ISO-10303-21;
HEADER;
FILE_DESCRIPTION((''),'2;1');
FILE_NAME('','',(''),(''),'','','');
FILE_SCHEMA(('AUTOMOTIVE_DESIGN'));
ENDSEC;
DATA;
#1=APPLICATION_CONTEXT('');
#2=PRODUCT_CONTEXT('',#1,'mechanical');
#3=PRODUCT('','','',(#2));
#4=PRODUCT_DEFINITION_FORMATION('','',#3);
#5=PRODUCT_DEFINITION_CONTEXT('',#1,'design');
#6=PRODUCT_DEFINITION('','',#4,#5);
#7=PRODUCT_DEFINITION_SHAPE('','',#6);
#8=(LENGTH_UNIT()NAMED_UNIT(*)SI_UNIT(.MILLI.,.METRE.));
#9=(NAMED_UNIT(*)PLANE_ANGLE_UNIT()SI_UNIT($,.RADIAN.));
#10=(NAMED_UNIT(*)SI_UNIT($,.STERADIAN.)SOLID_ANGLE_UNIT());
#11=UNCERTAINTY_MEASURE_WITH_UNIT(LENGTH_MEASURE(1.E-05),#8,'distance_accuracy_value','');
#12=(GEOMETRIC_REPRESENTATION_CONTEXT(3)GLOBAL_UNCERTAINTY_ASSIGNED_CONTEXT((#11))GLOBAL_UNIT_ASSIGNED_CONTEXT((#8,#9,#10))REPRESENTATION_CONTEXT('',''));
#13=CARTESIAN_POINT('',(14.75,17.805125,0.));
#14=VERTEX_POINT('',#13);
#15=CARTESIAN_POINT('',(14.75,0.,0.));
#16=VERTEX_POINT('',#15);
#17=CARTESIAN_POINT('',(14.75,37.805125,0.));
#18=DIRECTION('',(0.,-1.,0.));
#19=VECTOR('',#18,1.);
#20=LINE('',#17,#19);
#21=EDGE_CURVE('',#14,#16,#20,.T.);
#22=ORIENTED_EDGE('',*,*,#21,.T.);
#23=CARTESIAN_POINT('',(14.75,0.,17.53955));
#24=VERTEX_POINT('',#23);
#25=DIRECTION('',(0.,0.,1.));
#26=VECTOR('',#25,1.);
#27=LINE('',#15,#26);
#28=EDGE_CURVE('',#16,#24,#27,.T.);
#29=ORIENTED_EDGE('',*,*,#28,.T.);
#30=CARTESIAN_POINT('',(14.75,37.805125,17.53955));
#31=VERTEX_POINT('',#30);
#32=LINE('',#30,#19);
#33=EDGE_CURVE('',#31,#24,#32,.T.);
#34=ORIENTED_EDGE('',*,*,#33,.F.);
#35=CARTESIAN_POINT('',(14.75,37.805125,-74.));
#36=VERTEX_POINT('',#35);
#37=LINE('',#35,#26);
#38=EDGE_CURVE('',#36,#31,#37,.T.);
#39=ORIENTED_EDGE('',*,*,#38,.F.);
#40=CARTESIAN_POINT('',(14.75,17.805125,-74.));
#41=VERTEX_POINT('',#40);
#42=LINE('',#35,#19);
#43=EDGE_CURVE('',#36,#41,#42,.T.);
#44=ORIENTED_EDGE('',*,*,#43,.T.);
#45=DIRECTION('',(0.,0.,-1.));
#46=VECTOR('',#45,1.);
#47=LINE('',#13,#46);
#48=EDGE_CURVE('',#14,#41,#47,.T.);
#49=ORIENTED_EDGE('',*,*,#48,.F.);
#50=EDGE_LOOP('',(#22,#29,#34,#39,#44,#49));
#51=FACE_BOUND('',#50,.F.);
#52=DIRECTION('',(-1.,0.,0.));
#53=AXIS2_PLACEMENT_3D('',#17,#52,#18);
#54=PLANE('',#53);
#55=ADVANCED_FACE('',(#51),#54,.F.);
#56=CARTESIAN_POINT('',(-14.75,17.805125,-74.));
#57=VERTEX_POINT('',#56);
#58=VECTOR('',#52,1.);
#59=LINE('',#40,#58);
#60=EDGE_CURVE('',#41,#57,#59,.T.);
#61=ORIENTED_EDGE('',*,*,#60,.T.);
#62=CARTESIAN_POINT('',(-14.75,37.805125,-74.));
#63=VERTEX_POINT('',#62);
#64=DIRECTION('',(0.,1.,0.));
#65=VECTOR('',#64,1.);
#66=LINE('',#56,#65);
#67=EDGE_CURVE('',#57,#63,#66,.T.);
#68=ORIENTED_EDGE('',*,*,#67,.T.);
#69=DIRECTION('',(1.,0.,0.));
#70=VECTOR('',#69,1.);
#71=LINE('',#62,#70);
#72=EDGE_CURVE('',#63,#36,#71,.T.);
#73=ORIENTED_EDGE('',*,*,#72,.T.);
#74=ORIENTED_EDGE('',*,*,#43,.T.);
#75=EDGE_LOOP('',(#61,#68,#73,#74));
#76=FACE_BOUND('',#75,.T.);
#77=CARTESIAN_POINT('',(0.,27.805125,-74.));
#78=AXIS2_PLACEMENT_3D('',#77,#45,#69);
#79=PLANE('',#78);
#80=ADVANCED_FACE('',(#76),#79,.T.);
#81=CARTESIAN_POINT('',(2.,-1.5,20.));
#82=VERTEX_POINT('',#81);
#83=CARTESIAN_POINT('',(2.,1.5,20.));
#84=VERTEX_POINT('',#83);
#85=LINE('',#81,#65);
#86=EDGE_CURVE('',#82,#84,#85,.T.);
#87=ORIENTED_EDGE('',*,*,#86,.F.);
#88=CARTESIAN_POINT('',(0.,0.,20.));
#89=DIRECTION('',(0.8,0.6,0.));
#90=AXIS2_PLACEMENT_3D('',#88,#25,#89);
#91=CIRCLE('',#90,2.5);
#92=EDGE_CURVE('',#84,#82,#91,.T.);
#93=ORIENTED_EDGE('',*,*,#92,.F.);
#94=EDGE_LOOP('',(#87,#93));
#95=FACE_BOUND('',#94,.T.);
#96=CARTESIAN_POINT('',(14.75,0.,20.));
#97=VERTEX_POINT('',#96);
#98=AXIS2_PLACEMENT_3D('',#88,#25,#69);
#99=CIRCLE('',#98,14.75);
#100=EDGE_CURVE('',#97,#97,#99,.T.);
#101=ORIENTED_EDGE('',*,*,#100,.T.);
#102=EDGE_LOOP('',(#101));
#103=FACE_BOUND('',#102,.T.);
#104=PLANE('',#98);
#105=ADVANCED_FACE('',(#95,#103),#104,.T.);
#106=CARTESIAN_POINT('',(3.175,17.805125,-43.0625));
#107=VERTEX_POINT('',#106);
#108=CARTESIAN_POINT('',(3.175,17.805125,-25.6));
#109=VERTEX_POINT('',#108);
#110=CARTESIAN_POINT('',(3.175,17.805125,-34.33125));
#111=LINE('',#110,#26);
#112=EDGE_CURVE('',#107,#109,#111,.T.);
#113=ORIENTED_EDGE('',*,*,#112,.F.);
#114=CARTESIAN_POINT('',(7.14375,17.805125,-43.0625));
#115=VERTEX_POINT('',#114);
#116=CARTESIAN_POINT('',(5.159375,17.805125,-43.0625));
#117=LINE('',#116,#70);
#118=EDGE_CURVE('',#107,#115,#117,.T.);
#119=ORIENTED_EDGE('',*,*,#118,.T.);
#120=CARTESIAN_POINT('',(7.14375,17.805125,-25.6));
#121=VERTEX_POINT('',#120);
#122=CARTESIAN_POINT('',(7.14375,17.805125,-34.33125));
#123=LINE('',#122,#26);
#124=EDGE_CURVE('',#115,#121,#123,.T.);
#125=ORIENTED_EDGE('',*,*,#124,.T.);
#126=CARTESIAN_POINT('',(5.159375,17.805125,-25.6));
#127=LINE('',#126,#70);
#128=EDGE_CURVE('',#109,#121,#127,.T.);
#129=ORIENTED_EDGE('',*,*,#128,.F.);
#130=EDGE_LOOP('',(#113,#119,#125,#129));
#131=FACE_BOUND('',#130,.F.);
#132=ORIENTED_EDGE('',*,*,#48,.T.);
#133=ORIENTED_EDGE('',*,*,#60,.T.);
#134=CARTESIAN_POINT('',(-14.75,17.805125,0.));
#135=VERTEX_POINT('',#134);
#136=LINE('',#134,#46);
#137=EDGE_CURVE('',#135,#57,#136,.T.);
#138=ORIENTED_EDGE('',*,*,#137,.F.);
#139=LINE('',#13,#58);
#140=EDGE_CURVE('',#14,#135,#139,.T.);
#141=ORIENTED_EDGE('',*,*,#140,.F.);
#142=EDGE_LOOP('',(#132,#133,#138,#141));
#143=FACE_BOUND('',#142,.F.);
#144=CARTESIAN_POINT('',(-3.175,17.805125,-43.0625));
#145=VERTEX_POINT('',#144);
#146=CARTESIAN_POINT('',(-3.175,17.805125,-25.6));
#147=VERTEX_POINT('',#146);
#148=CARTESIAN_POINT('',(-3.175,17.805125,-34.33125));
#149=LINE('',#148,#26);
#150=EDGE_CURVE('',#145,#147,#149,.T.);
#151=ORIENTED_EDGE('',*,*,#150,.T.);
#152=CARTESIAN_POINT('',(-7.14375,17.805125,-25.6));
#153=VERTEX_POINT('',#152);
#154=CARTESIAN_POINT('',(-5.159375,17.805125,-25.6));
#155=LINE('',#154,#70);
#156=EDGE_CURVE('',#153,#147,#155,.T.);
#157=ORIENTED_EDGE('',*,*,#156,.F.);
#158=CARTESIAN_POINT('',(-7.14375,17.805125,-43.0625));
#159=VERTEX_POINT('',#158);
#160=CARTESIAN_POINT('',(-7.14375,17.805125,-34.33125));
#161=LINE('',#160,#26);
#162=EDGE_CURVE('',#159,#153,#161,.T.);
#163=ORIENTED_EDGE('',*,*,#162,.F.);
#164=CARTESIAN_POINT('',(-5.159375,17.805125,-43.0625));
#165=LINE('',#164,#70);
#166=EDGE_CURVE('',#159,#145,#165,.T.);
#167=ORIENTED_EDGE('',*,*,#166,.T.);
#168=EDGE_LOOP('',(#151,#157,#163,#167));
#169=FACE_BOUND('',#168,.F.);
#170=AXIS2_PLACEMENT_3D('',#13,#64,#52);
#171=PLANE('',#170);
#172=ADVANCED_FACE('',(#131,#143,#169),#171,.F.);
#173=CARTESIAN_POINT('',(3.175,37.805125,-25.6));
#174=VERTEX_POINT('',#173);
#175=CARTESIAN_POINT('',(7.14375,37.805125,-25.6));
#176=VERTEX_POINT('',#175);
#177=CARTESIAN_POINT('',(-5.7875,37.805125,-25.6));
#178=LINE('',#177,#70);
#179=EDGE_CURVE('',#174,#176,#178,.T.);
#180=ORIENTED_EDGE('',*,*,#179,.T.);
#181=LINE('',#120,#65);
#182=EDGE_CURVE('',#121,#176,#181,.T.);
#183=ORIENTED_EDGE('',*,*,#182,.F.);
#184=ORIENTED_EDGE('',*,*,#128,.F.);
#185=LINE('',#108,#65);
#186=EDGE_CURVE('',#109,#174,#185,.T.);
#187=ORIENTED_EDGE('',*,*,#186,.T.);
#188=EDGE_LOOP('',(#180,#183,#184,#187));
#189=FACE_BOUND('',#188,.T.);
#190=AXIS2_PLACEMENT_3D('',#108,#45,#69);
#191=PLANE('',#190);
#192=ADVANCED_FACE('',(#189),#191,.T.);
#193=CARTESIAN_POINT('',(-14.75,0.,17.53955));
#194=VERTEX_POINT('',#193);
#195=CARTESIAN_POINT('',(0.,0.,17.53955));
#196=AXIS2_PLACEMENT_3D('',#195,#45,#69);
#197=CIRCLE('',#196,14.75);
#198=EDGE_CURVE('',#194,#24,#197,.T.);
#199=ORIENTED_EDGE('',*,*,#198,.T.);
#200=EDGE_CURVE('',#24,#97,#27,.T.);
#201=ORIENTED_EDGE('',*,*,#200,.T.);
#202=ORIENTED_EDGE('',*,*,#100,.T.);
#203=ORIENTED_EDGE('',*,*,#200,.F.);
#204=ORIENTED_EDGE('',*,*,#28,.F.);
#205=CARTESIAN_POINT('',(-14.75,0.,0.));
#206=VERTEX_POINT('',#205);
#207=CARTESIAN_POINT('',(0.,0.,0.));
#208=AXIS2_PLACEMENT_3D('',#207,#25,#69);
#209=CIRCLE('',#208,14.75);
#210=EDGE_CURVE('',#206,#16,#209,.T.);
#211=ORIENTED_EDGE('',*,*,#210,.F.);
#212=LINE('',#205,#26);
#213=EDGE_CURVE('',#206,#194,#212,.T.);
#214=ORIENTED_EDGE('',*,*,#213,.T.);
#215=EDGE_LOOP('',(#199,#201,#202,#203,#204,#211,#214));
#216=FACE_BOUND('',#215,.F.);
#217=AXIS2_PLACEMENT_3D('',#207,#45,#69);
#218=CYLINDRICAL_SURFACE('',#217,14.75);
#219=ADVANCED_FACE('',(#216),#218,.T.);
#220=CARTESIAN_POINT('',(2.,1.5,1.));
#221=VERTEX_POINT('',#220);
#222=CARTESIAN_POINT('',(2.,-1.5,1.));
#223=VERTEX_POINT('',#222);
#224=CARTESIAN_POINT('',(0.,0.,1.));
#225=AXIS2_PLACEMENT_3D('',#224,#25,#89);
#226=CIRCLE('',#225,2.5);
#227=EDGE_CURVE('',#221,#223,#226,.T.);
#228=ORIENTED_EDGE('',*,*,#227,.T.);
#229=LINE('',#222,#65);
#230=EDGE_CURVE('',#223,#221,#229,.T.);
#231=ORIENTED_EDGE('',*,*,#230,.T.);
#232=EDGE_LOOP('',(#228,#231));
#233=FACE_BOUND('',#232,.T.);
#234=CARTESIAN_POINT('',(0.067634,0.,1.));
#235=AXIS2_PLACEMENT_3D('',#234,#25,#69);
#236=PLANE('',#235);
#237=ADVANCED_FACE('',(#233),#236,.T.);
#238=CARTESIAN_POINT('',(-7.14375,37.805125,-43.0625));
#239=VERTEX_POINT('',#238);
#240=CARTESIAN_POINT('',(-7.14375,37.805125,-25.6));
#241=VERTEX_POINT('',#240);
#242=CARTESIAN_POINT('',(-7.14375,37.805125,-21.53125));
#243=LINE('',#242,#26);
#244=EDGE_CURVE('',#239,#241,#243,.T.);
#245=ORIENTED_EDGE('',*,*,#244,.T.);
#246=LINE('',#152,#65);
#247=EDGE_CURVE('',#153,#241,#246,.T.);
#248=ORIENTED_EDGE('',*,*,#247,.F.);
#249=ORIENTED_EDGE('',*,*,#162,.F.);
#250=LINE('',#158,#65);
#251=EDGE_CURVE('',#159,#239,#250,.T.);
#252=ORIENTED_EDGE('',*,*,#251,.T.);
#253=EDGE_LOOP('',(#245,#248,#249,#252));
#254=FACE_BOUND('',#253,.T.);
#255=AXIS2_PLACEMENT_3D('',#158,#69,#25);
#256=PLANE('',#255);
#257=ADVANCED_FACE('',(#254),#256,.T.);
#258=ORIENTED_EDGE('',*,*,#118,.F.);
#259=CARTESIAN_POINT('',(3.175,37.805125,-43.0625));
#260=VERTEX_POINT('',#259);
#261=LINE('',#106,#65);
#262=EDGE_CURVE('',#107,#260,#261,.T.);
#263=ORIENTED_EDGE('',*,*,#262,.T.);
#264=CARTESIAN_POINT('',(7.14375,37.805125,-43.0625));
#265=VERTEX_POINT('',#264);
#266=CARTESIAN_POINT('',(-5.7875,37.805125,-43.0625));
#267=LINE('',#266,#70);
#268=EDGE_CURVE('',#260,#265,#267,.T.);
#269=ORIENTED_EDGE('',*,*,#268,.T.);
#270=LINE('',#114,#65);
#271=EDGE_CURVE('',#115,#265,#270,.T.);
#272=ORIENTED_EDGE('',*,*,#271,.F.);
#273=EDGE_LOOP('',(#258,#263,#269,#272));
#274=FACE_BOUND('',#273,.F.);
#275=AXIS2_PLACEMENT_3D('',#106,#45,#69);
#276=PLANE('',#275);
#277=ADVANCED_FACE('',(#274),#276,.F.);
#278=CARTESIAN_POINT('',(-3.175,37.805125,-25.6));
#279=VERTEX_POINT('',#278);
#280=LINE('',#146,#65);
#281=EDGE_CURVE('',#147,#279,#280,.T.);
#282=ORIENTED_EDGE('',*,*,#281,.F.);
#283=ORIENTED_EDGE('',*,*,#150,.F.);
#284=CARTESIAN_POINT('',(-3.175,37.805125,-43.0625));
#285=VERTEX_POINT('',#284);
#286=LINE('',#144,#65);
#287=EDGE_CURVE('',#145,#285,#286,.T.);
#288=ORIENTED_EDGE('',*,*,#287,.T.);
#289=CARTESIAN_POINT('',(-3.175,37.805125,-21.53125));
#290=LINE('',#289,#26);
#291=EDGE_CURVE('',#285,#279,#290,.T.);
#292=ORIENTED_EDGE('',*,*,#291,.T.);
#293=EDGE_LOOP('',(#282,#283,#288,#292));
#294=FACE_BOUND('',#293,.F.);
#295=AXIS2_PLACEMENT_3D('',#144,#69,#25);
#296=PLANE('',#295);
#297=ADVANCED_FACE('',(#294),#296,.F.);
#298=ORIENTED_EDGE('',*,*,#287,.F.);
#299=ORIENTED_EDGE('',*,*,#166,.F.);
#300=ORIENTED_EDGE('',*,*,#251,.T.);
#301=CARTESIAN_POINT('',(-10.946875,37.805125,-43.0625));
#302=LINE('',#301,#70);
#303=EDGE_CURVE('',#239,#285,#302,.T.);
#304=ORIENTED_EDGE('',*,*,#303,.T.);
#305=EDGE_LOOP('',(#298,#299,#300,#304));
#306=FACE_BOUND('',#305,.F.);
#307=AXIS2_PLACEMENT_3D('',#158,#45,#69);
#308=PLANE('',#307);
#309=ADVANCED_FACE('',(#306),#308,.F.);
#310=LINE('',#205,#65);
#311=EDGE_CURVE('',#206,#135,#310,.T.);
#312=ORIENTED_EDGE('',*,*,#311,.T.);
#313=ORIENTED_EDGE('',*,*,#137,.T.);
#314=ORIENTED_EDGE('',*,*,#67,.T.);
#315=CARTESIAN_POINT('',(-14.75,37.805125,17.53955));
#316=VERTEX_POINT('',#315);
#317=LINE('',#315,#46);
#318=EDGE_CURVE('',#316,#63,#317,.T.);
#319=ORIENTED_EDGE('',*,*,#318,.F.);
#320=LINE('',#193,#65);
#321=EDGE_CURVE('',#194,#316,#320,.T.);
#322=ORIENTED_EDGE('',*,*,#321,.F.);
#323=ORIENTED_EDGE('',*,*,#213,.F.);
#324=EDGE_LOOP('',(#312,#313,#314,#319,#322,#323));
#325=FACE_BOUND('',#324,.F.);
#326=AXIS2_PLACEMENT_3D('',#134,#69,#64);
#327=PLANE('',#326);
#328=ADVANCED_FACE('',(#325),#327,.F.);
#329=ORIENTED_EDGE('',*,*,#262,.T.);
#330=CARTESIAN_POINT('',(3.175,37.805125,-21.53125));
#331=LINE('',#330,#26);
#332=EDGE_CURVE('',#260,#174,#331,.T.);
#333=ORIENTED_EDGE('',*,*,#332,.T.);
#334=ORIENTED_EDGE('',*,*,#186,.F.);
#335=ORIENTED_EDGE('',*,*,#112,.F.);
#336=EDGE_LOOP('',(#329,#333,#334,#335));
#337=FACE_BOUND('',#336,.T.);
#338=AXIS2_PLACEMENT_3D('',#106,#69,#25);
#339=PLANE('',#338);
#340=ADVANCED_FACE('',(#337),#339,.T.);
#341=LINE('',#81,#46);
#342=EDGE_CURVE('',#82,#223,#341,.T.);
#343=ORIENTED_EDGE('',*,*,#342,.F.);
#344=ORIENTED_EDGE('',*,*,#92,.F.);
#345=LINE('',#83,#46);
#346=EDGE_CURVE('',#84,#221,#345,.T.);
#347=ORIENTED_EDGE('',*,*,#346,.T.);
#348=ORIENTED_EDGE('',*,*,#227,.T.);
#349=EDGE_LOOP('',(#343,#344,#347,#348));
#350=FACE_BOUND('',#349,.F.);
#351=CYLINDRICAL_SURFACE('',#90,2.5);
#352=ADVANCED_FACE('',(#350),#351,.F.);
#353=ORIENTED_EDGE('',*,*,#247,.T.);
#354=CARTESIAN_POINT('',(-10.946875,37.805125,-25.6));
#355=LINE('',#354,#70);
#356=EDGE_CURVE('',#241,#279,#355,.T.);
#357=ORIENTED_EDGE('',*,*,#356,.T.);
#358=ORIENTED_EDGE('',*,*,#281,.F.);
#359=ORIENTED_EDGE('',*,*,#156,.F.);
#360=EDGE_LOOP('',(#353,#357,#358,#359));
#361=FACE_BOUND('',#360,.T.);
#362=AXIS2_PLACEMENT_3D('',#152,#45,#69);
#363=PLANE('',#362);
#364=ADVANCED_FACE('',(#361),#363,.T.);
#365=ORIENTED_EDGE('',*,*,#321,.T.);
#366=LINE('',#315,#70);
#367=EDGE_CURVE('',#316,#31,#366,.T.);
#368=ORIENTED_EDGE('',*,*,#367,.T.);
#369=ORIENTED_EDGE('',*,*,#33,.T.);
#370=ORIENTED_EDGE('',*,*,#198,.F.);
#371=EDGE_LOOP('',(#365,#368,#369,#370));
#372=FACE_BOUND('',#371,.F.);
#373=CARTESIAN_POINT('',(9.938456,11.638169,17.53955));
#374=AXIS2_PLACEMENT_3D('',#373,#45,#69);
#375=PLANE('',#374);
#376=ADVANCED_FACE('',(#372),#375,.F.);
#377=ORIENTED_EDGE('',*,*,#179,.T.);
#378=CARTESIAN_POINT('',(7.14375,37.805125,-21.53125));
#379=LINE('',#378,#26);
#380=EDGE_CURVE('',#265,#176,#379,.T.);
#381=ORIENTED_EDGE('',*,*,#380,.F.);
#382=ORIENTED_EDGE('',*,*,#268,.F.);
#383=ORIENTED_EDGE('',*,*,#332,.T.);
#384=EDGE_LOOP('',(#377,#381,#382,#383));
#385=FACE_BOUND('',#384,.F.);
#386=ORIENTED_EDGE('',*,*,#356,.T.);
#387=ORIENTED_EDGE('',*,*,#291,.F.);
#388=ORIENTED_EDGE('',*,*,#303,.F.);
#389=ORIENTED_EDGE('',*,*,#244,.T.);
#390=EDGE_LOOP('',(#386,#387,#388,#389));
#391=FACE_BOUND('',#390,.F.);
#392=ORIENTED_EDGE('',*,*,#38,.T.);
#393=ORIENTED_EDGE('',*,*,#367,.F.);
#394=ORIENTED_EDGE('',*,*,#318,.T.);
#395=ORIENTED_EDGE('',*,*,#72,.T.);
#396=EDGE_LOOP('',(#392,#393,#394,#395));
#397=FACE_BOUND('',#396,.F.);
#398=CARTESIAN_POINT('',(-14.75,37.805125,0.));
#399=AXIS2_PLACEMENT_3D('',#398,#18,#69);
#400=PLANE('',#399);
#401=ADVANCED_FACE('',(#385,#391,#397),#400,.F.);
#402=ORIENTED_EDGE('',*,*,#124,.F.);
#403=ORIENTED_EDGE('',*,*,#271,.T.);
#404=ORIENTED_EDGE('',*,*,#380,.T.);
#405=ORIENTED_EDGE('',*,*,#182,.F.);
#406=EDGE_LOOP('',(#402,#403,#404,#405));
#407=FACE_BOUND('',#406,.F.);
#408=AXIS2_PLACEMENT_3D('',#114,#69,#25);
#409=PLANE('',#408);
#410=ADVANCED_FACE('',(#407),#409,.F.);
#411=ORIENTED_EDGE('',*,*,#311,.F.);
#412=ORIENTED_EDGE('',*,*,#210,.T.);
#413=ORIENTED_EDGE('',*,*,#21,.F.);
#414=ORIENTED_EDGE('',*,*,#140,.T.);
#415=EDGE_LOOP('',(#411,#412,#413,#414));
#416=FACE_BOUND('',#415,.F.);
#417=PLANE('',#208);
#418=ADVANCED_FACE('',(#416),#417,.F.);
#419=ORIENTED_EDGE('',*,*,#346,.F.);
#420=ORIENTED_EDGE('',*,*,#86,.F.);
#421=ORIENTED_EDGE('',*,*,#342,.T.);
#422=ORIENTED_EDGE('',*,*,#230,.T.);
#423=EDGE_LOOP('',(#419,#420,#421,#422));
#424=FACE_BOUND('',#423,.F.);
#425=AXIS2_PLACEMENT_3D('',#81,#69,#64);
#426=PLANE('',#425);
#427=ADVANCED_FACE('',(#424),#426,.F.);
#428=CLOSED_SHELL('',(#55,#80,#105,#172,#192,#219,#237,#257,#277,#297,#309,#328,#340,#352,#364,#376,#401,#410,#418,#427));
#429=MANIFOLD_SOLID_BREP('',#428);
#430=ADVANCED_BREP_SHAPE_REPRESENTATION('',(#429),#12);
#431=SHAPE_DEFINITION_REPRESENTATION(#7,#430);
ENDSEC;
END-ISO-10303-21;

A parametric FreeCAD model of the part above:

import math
import FreeCAD as App
import Part
import Sketcher


def add_polygon(sketch, points):
    """Adds a closed chain of lines whose ends are joined by coincident constraints."""
    first, n = sketch.GeometryCount, len(points)
    for a, b in zip(points, points[1:] + points[:1]):
        sketch.addGeometry(Part.LineSegment(App.Vector(*a, 0), App.Vector(*b, 0)), False)
    for i in range(n):
        sketch.addConstraint(Sketcher.Constraint("Coincident", first + i, 2, first + (i + 1) % n, 1))

doc = App.newDocument("Part")
params = doc.addObject("Spreadsheet::Sheet", "Params")
for row, (alias, value) in enumerate([
    ("sketch1_diameter", "29.5 mm"),
    ("pad1_length", "20 mm"),
    ("sketch2_width", "29.5 mm"),
    ("pad2_length", "17.53955 mm"),
    ("sketch3_height", "20 mm"),
    ("sketch3_width", "29.5 mm"),
    ("pad3_length", "74 mm"),
    ("sketch4_radius", "2.5 mm"),
    ("sketch4_height", "3 mm"),
    ("pocket1_length", "19 mm"),
], start=1):
    params.set(f"A{row}", alias)
    params.set(f"B{row}", "=" + value)
    params.setAlias(f"B{row}", alias)

body = doc.addObject("PartDesign::Body", "Body")

# Sketch on XY plane
sketch1 = body.newObject("Sketcher::SketchObject", "Sketch")
sketch1.AttachmentSupport = (doc.getObject("XY_Plane"), [""])
sketch1.MapMode = "FlatFace"
sketch1.addGeometry(Part.Circle(App.Vector(0, 0, 0), App.Vector(0, 0, 1), 15), False)
sketch1.addConstraint(Sketcher.Constraint("Coincident", 0, 3, -1, 1))
sketch1.addConstraint(Sketcher.Constraint("Diameter", 0, 29.5))
sketch1.setExpression("Constraints[1]", "Params.sketch1_diameter")
pad1 = body.newObject("PartDesign::Pad", "Pad")
pad1.Profile = sketch1
pad1.setExpression("Length", "Params.pad1_length")

# Sketch on XY plane
sketch2 = body.newObject("Sketcher::SketchObject", "Sketch001")
sketch2.AttachmentSupport = (doc.getObject("XY_Plane"), [""])
sketch2.MapMode = "FlatFace"
add_polygon(sketch2, [(15, 0), (-15, 0), (-15, 38), (15, 38)])  # lines 0-3
sketch2.addConstraint(Sketcher.Constraint("Horizontal", 0))
sketch2.addConstraint(Sketcher.Constraint("Vertical", 1))
sketch2.addConstraint(Sketcher.Constraint("Horizontal", 2))
sketch2.addConstraint(Sketcher.Constraint("Vertical", 3))
sketch2.addConstraint(Sketcher.Constraint("Symmetric", 0, 2, 3, 2, -1, 1))
sketch2.addConstraint(Sketcher.Constraint("DistanceX", 0, 2, 0, 1, 29.5))
sketch2.addConstraint(Sketcher.Constraint("DistanceY", 1, 1, 1, 2, 37.805125))
sketch2.setExpression("Constraints[9]", "Params.sketch2_width")
pad2 = body.newObject("PartDesign::Pad", "Pad001")
pad2.Profile = sketch2
pad2.setExpression("Length", "Params.pad2_length")

# Sketch on XY plane
sketch3 = body.newObject("Sketcher::SketchObject", "Sketch002")
sketch3.AttachmentSupport = (doc.getObject("XY_Plane"), [""])
sketch3.MapMode = "FlatFace"
add_polygon(sketch3, [(15, 18), (-15, 18), (-15, 38), (15, 38)])  # lines 0-3
sketch3.addConstraint(Sketcher.Constraint("Horizontal", 0))
sketch3.addConstraint(Sketcher.Constraint("Vertical", 1))
sketch3.addConstraint(Sketcher.Constraint("Horizontal", 2))
sketch3.addConstraint(Sketcher.Constraint("Vertical", 3))
sketch3.addConstraint(Sketcher.Constraint("DistanceY", 1, 1, 1, 2, 20.0))
sketch3.addConstraint(Sketcher.Constraint("DistanceX", 0, 2, 0, 1, 29.5))
sketch3.addConstraint(Sketcher.Constraint("DistanceX", 0, 2, -1, 1, 14.75))
sketch3.addConstraint(Sketcher.Constraint("DistanceY", -1, 1, 0, 2, 17.805125))
sketch3.setExpression("Constraints[8]", "Params.sketch3_height")
sketch3.setExpression("Constraints[9]", "Params.sketch3_width")
pad3 = body.newObject("PartDesign::Pad", "Pad002")
pad3.Profile = sketch3
pad3.setExpression("Length", "Params.pad3_length")
pad3.Reversed = True

# Sketch on XY plane
sketch4 = body.newObject("Sketcher::SketchObject", "Sketch003")
sketch4.AttachmentSupport = (doc.getObject("XY_Plane"), [""])
sketch4.MapMode = "FlatFace"
sketch4.AttachmentOffset = App.Placement(App.Vector(0, 0, 20), App.Rotation())
sketch4.addGeometry(Part.LineSegment(App.Vector(2, -1.5, 0), App.Vector(2, 1.5, 0)), False)
sketch4.addGeometry(Part.ArcOfCircle(Part.Circle(App.Vector(0, 0, 0), App.Vector(0, 0, 1), 2.5), math.radians(37), math.radians(323)), False)
sketch4.addConstraint(Sketcher.Constraint("Coincident", 0, 1, 1, 2))
sketch4.addConstraint(Sketcher.Constraint("Coincident", 1, 1, 0, 2))
sketch4.addConstraint(Sketcher.Constraint("Vertical", 0))
sketch4.addConstraint(Sketcher.Constraint("Coincident", 1, 3, -1, 1))
sketch4.addConstraint(Sketcher.Constraint("Radius", 1, 2.5))
sketch4.addConstraint(Sketcher.Constraint("DistanceY", 0, 1, 0, 2, 3.0))
sketch4.setExpression("Constraints[4]", "Params.sketch4_radius")
sketch4.setExpression("Constraints[5]", "Params.sketch4_height")
pocket1 = body.newObject("PartDesign::Pocket", "Pocket")
pocket1.Profile = sketch4
pocket1.setExpression("Length", "Params.pocket1_length")

# Sketch on XZ plane
sketch5 = body.newObject("Sketcher::SketchObject", "Sketch004")
sketch5.AttachmentSupport = (doc.getObject("XZ_Plane"), [""])
sketch5.MapMode = "FlatFace"
sketch5.AttachmentOffset = App.Placement(App.Vector(0, 0, -17.805125), App.Rotation())
add_polygon(sketch5, [(3.2, -25.6), (3.2, -43.1), (7.1, -43.1), (7.1, -25.6)])  # lines 0-3
add_polygon(sketch5, [(-7.1, -25.6), (-7.1, -43.1), (-3.2, -43.1), (-3.2, -25.6)])  # lines 4-7
sketch5.addConstraint(Sketcher.Constraint("Vertical", 0))
sketch5.addConstraint(Sketcher.Constraint("Horizontal", 1))
sketch5.addConstraint(Sketcher.Constraint("Vertical", 2))
sketch5.addConstraint(Sketcher.Constraint("Horizontal", 3))
sketch5.addConstraint(Sketcher.Constraint("Vertical", 4))
sketch5.addConstraint(Sketcher.Constraint("Horizontal", 5))
sketch5.addConstraint(Sketcher.Constraint("Vertical", 6))
sketch5.addConstraint(Sketcher.Constraint("Horizontal", 7))
sketch5.addConstraint(Sketcher.Constraint("Symmetric", 1, 2, 4, 2, -2))
sketch5.addConstraint(Sketcher.Constraint("Symmetric", 3, 2, 6, 2, -2))
sketch5.addConstraint(Sketcher.Constraint("DistanceY", 2, 2, -1, 1, 25.6))
sketch5.addConstraint(Sketcher.Constraint("DistanceX", 5, 2, 0, 2, 6.35))
sketch5.addConstraint(Sketcher.Constraint("DistanceY", 0, 2, 0, 1, 17.4625))
sketch5.addConstraint(Sketcher.Constraint("DistanceX", 1, 1, 1, 2, 3.96875))
pocket2 = body.newObject("PartDesign::Pocket", "Pocket001")
pocket2.Profile = sketch5
pocket2.Type = "ThroughAll"

doc.recompute()
